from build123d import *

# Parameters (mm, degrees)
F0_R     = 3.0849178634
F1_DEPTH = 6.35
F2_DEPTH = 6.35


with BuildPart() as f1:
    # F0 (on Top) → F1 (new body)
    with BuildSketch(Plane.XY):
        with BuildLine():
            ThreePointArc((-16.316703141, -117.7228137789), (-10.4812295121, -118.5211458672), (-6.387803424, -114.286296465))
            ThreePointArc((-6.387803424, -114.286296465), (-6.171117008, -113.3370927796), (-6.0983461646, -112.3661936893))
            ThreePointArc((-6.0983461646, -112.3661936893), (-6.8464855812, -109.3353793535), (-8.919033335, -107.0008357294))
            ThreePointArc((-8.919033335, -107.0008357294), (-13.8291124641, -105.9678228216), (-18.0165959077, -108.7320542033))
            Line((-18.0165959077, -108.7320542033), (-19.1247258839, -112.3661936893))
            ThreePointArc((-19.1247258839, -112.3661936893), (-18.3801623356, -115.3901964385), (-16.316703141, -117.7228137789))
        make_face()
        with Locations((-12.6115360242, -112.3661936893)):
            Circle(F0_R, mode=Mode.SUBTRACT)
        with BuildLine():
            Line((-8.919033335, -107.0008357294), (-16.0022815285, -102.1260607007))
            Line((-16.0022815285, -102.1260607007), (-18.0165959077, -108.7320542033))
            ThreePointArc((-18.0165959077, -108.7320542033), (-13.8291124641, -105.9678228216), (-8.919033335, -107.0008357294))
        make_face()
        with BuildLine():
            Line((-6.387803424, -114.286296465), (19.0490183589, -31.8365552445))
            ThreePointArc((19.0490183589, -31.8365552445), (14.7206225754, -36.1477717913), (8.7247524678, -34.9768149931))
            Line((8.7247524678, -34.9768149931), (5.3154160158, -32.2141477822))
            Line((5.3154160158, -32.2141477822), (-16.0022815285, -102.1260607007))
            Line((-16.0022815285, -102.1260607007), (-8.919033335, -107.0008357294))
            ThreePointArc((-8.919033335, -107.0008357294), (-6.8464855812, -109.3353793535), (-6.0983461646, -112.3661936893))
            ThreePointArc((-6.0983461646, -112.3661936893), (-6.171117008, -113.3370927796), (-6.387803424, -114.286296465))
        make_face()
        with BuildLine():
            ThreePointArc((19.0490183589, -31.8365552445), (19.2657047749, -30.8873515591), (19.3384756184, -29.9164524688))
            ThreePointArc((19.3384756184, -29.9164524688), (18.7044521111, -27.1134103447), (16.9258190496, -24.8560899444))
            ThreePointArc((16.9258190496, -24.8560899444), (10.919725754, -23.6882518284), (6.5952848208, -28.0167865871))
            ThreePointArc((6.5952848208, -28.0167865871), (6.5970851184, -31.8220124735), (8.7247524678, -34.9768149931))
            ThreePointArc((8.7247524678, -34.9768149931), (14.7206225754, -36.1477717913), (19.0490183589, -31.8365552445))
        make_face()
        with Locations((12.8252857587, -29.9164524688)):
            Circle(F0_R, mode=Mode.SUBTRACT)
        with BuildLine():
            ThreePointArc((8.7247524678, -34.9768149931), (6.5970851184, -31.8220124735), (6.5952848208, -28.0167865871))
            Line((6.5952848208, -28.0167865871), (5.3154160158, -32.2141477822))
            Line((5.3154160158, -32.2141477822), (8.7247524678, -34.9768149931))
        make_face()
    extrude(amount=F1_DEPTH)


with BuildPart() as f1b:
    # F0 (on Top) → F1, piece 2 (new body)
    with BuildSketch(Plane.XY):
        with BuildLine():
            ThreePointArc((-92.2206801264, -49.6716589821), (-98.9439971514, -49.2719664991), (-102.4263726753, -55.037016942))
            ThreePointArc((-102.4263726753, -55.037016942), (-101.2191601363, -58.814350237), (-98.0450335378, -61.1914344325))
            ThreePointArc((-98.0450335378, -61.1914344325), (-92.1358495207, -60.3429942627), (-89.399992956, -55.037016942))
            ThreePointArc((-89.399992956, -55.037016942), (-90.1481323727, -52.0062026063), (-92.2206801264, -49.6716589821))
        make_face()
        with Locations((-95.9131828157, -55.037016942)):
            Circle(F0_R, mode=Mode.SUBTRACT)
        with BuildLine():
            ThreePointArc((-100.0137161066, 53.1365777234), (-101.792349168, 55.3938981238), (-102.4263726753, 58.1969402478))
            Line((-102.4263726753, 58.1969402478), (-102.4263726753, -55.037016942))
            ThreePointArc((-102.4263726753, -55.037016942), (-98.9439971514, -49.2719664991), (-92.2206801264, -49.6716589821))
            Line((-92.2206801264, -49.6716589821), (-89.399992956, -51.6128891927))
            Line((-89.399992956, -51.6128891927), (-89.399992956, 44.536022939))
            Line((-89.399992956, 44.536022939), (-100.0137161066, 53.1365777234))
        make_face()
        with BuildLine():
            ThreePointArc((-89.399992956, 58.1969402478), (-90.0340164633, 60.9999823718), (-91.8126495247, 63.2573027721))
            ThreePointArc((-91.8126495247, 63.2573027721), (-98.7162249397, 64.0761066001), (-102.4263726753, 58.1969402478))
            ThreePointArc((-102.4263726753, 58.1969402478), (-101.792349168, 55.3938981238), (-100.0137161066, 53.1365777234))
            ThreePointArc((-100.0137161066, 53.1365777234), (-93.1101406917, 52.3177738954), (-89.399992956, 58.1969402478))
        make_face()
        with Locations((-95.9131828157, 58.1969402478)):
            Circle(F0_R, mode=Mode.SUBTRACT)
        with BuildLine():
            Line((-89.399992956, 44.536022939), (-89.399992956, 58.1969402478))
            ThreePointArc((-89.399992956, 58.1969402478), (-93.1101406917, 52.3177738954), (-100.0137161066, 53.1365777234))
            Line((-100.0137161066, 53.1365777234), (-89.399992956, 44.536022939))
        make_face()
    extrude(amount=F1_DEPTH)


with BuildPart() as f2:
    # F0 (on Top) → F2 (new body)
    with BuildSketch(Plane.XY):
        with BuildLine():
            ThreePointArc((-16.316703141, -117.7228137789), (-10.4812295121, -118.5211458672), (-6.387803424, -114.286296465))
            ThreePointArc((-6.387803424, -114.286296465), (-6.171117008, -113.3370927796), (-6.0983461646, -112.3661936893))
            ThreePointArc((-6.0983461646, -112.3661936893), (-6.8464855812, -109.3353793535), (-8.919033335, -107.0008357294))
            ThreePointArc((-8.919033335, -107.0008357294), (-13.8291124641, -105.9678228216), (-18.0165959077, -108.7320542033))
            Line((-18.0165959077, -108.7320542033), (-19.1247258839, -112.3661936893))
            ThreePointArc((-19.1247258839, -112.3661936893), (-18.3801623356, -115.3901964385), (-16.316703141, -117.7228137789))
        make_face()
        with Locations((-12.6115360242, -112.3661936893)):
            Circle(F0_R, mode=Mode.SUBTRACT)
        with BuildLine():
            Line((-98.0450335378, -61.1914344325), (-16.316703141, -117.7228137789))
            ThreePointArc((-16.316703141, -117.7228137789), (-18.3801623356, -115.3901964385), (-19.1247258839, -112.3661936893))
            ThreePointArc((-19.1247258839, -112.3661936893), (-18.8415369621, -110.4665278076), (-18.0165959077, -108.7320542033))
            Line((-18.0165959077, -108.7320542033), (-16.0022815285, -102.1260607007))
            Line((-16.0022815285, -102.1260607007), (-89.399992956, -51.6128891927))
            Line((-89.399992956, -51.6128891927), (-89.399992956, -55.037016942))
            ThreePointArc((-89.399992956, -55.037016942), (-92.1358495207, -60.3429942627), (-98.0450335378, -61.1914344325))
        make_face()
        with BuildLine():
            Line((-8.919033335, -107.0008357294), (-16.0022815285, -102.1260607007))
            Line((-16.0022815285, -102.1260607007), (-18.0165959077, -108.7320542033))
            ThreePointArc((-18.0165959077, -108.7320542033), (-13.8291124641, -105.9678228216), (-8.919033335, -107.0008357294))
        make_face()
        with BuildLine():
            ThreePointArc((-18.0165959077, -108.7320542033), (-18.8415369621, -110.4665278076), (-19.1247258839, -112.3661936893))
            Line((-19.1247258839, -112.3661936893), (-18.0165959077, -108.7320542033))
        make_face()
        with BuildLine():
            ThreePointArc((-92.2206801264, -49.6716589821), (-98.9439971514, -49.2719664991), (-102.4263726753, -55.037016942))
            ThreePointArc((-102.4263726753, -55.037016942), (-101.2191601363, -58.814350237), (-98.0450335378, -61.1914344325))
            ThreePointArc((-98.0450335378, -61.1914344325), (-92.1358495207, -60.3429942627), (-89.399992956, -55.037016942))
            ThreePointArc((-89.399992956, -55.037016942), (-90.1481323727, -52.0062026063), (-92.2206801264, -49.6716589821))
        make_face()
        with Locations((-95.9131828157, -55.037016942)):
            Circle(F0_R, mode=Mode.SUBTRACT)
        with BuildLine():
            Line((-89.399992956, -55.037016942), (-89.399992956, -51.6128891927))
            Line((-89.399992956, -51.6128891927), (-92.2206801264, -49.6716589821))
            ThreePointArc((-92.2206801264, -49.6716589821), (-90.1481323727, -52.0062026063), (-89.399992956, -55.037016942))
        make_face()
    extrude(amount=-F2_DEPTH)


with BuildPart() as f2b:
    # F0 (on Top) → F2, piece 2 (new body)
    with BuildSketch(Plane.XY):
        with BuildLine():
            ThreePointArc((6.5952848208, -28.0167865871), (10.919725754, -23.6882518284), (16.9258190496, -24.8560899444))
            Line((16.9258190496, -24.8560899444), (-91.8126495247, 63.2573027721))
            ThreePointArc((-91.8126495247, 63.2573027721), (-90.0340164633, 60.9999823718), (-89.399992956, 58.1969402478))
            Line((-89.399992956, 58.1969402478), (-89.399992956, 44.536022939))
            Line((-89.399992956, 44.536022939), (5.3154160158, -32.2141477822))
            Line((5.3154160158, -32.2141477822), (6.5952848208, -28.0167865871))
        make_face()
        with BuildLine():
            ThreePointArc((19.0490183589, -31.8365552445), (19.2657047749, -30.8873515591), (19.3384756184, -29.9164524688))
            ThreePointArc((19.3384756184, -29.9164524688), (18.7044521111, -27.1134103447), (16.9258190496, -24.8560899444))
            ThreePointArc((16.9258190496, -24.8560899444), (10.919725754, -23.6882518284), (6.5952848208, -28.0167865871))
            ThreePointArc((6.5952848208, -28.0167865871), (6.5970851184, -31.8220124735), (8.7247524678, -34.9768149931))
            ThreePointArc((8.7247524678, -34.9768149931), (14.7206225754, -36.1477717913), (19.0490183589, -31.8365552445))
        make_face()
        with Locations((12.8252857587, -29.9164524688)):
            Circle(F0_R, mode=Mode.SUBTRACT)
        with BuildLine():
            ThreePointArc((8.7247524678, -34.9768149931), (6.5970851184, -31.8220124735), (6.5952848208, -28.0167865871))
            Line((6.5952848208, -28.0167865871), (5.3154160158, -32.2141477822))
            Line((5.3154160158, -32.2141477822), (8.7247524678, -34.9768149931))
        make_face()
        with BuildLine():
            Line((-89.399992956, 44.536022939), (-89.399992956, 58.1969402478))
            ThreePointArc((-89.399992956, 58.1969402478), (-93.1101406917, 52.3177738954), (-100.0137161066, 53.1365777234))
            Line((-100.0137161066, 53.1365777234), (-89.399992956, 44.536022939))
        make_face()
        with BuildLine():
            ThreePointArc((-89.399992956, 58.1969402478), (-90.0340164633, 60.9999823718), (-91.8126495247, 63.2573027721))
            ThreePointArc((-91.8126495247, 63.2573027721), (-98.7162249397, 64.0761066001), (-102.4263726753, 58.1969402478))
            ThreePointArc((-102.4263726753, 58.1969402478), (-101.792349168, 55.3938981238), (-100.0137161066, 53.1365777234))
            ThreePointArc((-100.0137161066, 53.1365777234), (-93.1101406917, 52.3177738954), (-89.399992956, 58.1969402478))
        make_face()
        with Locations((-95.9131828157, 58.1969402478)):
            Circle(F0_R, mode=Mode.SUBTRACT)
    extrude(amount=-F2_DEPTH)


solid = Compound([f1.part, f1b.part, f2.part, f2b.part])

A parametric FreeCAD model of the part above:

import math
import FreeCAD as App
import Part
import Sketcher
from FreeCAD import Vector
Q = App.Units.Quantity

doc = App.newDocument("Part")
body = doc.addObject("PartDesign::Body", "Body")

# Sketch on XY plane
sketch1 = body.newObject("Sketcher::SketchObject", "Sketch")
sketch1.AttachmentSupport = (doc.getObject("XY_Plane"), [""])
sketch1.MapMode = "FlatFace"
sketch1.addGeometry(Part.ArcOfCircle(Part.Circle(Vector(-12.611536, -112.366194, 0), Vector(0, 0, 1), 6.51319), math.radians(-124.671559), math.radians(-17.145678)), False)
sketch1.addGeometry(Part.LineSegment(Vector(-6.387803, -114.286296, 0), Vector(19.049018, -31.836555, 0)), False)
sketch1.addGeometry(Part.ArcOfCircle(Part.Circle(Vector(12.825286, -29.916452, 0), Vector(0, 0, 1), 6.51319), math.radians(-17.145678), math.radians(0)), False)
sketch1.addGeometry(Part.ArcOfCircle(Part.Circle(Vector(12.825286, -29.916452, 0), Vector(0, 0, 1), 6.51319), math.radians(0), math.radians(50.981319)), False)
sketch1.addGeometry(Part.ArcOfCircle(Part.Circle(Vector(12.825286, -29.916452, 0), Vector(0, 0, 1), 6.51319), math.radians(50.981319), math.radians(163.04237)), False)
sketch1.addGeometry(Part.LineSegment(Vector(6.595285, -28.016787, 0), Vector(5.315416, -32.214148, 0)), False)
sketch1.addGeometry(Part.LineSegment(Vector(5.315416, -32.214148, 0), Vector(-16.002282, -102.126061, 0)), False)
sketch1.addGeometry(Part.LineSegment(Vector(-16.002282, -102.126061, 0), Vector(-18.016596, -108.732054, 0)), False)
sketch1.addGeometry(Part.LineSegment(Vector(-18.016596, -108.732054, 0), Vector(-19.124726, -112.366194, 0)), False)
sketch1.addGeometry(Part.ArcOfCircle(Part.Circle(Vector(-12.611536, -112.366194, 0), Vector(0, 0, 1), 6.51319), math.radians(180), math.radians(235.328441)), False)
sketch1.addGeometry(Part.Circle(Vector(-12.611536, -112.366194, 0), Vector(0, 0, 1), 3.084918), False)
sketch1.addGeometry(Part.Circle(Vector(12.825286, -29.916452, 0), Vector(0, 0, 1), 3.084918), False)
sketch1.addConstraint(Sketcher.Constraint("Tangent", 0, 2, 1, 1))
sketch1.addConstraint(Sketcher.Constraint("Tangent", 1, 2, 2, 1))
sketch1.addConstraint(Sketcher.Constraint("Tangent", 2, 2, 3, 1))
sketch1.addConstraint(Sketcher.Constraint("Tangent", 3, 2, 4, 1))
sketch1.addConstraint(Sketcher.Constraint("Tangent", 4, 2, 5, 1))
sketch1.addConstraint(Sketcher.Constraint("Coincident", 5, 2, 6, 1))
sketch1.addConstraint(Sketcher.Constraint("Coincident", 6, 2, 7, 1))
sketch1.addConstraint(Sketcher.Constraint("Coincident", 7, 2, 8, 1))
sketch1.addConstraint(Sketcher.Constraint("Coincident", 8, 2, 9, 1))
sketch1.addConstraint(Sketcher.Constraint("Tangent", 9, 2, 0, 1))
sketch1.addConstraint(Sketcher.Constraint("Coincident", 4, 3, 2, 3))
sketch1.addConstraint(Sketcher.Constraint("Coincident", 10, 3, 0, 3))
sketch1.addConstraint(Sketcher.Constraint("Coincident", 11, 3, 2, 3))
sketch1.addConstraint(Sketcher.Constraint("Equal", 0, 2))
sketch1.addConstraint(Sketcher.Constraint("Equal", 4, 9))
sketch1.addConstraint(Sketcher.Constraint("Equal", 10, 11))
sketch1.addConstraint(Sketcher.Constraint("Parallel", 5, 6))
sketch1.addConstraint(Sketcher.Constraint("Parallel", 6, 7))
sketch1.addConstraint(Sketcher.Constraint("Parallel", 7, 8))
sketch1.addConstraint(Sketcher.Constraint("Horizontal", 11, 3, 2, 2))
sketch1.addConstraint(Sketcher.Constraint("Horizontal", 10, 3, 8, 2))
sketch1.addConstraint(Sketcher.Constraint("Radius", 0, Q("6.51319 mm")))
sketch1.addConstraint(Sketcher.Constraint("Diameter", 10, Q("6.169836 mm")))
sketch1.addConstraint(Sketcher.Constraint("DistanceX", 4, 2, 2, 3, Q("6.230001 mm")))
sketch1.addConstraint(Sketcher.Constraint("Distance", 8, Q("3.799332 mm")))
sketch1.addConstraint(Sketcher.Constraint("DistanceX", -1, 1, 1, 2, Q("19.049018 mm")))
sketch1.addConstraint(Sketcher.Constraint("DistanceX", -1, 1, 3, 2, Q("16.925819 mm")))
sketch1.addConstraint(Sketcher.Constraint("DistanceY", 3, 2, -1, 1, Q("24.85609 mm")))
sketch1.addConstraint(Sketcher.Constraint("DistanceX", 6, 2, -1, 1, Q("16.002282 mm")))
sketch1.addConstraint(Sketcher.Constraint("DistanceX", 0, 3, 2, 3, Q("25.436822 mm")))
sketch1.addConstraint(Sketcher.Constraint("DistanceX", 5, 2, 4, 2, Q("1.279869 mm")))
sketch1.addConstraint(Sketcher.Constraint("DistanceY", 9, 2, 8, 2, Q("5.35662 mm")))
pad1 = body.newObject("PartDesign::Pad", "Pad")
pad1.Profile = sketch1
pad1.Length = Q("0.25 in")
body2 = doc.addObject("PartDesign::Body", "Body001")

# Sketch on XY plane
sketch2 = body2.newObject("Sketcher::SketchObject", "Sketch001")
sketch2.AttachmentSupport = (doc.getObject("XY_Plane001"), [""])
sketch2.MapMode = "FlatFace"
sketch2.addGeometry(Part.ArcOfCircle(Part.Circle(Vector(-95.913183, -55.037017, 0), Vector(0, 0, 1), 6.51319), math.radians(0), math.radians(55.463792)), False)
sketch2.addGeometry(Part.LineSegment(Vector(-92.22068, -49.671659, 0), Vector(-89.399993, -51.612889, 0)), False)
sketch2.addGeometry(Part.LineSegment(Vector(-89.399993, -51.612889, 0), Vector(-89.399993, 58.19694, 0)), False)
sketch2.addGeometry(Part.ArcOfCircle(Part.Circle(Vector(-95.913183, 58.19694, 0), Vector(0, 0, 1), 6.51319), math.radians(0), math.radians(50.981319)), False)
sketch2.addGeometry(Part.ArcOfCircle(Part.Circle(Vector(-95.913183, 58.19694, 0), Vector(0, 0, 1), 6.51319), math.radians(50.981319), math.radians(180)), False)
sketch2.addGeometry(Part.LineSegment(Vector(-102.426373, 58.19694, 0), Vector(-102.426373, -55.037017, 0)), False)
sketch2.addGeometry(Part.ArcOfCircle(Part.Circle(Vector(-95.913183, -55.037017, 0), Vector(0, 0, 1), 6.51319), math.radians(180), math.radians(250.894243)), False)
sketch2.addGeometry(Part.ArcOfCircle(Part.Circle(Vector(-95.913183, -55.037017, 0), Vector(0, 0, 1), 6.51319), math.radians(-109.105757), math.radians(0)), False)
sketch2.addGeometry(Part.Circle(Vector(-95.913183, -55.037017, 0), Vector(0, 0, 1), 3.084918), False)
sketch2.addGeometry(Part.Circle(Vector(-95.913183, 58.19694, 0), Vector(0, 0, 1), 3.084918), False)
sketch2.addConstraint(Sketcher.Constraint("Tangent", 0, 2, 1, 1))
sketch2.addConstraint(Sketcher.Constraint("Coincident", 1, 2, 2, 1))
sketch2.addConstraint(Sketcher.Constraint("Tangent", 2, 2, 3, 1))
sketch2.addConstraint(Sketcher.Constraint("Tangent", 3, 2, 4, 1))
sketch2.addConstraint(Sketcher.Constraint("Tangent", 4, 2, 5, 1))
sketch2.addConstraint(Sketcher.Constraint("Tangent", 5, 2, 6, 1))
sketch2.addConstraint(Sketcher.Constraint("Tangent", 6, 2, 7, 1))
sketch2.addConstraint(Sketcher.Constraint("Tangent", 7, 2, 0, 1))
sketch2.addConstraint(Sketcher.Constraint("Vertical", 2))
sketch2.addConstraint(Sketcher.Constraint("Vertical", 5))
sketch2.addConstraint(Sketcher.Constraint("Coincident", 6, 3, 0, 3))
sketch2.addConstraint(Sketcher.Constraint("Coincident", 8, 3, 0, 3))
sketch2.addConstraint(Sketcher.Constraint("Coincident", 9, 3, 3, 3))
sketch2.addConstraint(Sketcher.Constraint("Equal", 0, 3))
sketch2.addConstraint(Sketcher.Constraint("Equal", 3, 4))
sketch2.addConstraint(Sketcher.Constraint("Equal", 8, 9))
sketch2.addConstraint(Sketcher.Constraint("Horizontal", 5, 2, 7, 2))
sketch2.addConstraint(Sketcher.Constraint("Radius", 0, Q("6.51319 mm")))
sketch2.addConstraint(Sketcher.Constraint("Diameter", 8, Q("6.169836 mm")))
sketch2.addConstraint(Sketcher.Constraint("DistanceY", 6, 2, 0, 3, Q("0.2422999 in")))
sketch2.addConstraint(Sketcher.Constraint("DistanceY", 2, 1, 2, 2, Q("109.809829 mm")))
sketch2.addConstraint(Sketcher.Constraint("DistanceY", 0, 2, 3, 3, Q("107.868599 mm")))
sketch2.addConstraint(Sketcher.Constraint("DistanceY", -1, 1, 3, 3, Q("58.19694 mm")))
sketch2.addConstraint(Sketcher.Constraint("DistanceX", 0, 2, -1, 1, Q("92.22068 mm")))
sketch2.addConstraint(Sketcher.Constraint("DistanceX", 3, 2, -1, 1, Q("91.81265 mm")))
pad2 = body2.newObject("PartDesign::Pad", "Pad001")
pad2.Profile = sketch2
pad2.Length = Q("0.25 in")
body3 = doc.addObject("PartDesign::Body", "Body002")

# Sketch on XY plane
sketch3 = body3.newObject("Sketcher::SketchObject", "Sketch002")
sketch3.AttachmentSupport = (doc.getObject("XY_Plane002"), [""])
sketch3.MapMode = "FlatFace"
sketch3.addGeometry(Part.ArcOfCircle(Part.Circle(Vector(-12.611536, -112.366194, 0), Vector(0, 0, 1), 6.51319), math.radians(0), math.radians(55.463792)), False)
sketch3.addGeometry(Part.LineSegment(Vector(-8.919033, -107.000836, 0), Vector(-16.002282, -102.126061, 0)), False)
sketch3.addGeometry(Part.LineSegment(Vector(-16.002282, -102.126061, 0), Vector(-89.399993, -51.612889, 0)), False)
sketch3.addGeometry(Part.LineSegment(Vector(-89.399993, -51.612889, 0), Vector(-92.22068, -49.671659, 0)), False)
sketch3.addGeometry(Part.ArcOfCircle(Part.Circle(Vector(-95.913183, -55.037017, 0), Vector(0, 0, 1), 6.51319), math.radians(55.463792), math.radians(180)), False)
sketch3.addGeometry(Part.ArcOfCircle(Part.Circle(Vector(-95.913183, -55.037017, 0), Vector(0, 0, 1), 6.51319), math.radians(180), math.radians(250.894243)), False)
sketch3.addGeometry(Part.LineSegment(Vector(-98.045034, -61.191434, 0), Vector(-16.316703, -117.722814, 0)), False)
sketch3.addGeometry(Part.ArcOfCircle(Part.Circle(Vector(-12.611536, -112.366194, 0), Vector(0, 0, 1), 6.51319), math.radians(-124.671559), math.radians(-17.145678)), False)
sketch3.addGeometry(Part.ArcOfCircle(Part.Circle(Vector(-12.611536, -112.366194, 0), Vector(0, 0, 1), 6.51319), math.radians(-17.145677), math.radians(0)), False)
sketch3.addGeometry(Part.Circle(Vector(-12.611536, -112.366194, 0), Vector(0, 0, 1), 3.084918), False)
sketch3.addGeometry(Part.Circle(Vector(-95.913183, -55.037017, 0), Vector(0, 0, 1), 3.084918), False)
sketch3.addConstraint(Sketcher.Constraint("Tangent", 0, 2, 1, 1))
sketch3.addConstraint(Sketcher.Constraint("Coincident", 1, 2, 2, 1))
sketch3.addConstraint(Sketcher.Constraint("Coincident", 2, 2, 3, 1))
sketch3.addConstraint(Sketcher.Constraint("Tangent", 3, 2, 4, 1))
sketch3.addConstraint(Sketcher.Constraint("Tangent", 4, 2, 5, 1))
sketch3.addConstraint(Sketcher.Constraint("Coincident", 5, 2, 6, 1))
sketch3.addConstraint(Sketcher.Constraint("Tangent", 6, 2, 7, 1))
sketch3.addConstraint(Sketcher.Constraint("Tangent", 7, 2, 8, 1))
sketch3.addConstraint(Sketcher.Constraint("Tangent", 8, 2, 0, 1))
sketch3.addConstraint(Sketcher.Constraint("Coincident", 7, 3, 0, 3))
sketch3.addConstraint(Sketcher.Constraint("Coincident", 9, 3, 0, 3))
sketch3.addConstraint(Sketcher.Constraint("Coincident", 10, 3, 4, 3))
sketch3.addConstraint(Sketcher.Constraint("Equal", 0, 4))
sketch3.addConstraint(Sketcher.Constraint("Equal", 4, 5))
sketch3.addConstraint(Sketcher.Constraint("Equal", 9, 10))
sketch3.addConstraint(Sketcher.Constraint("Parallel", 1, 2))
sketch3.addConstraint(Sketcher.Constraint("Parallel", 2, 3))
sketch3.addConstraint(Sketcher.Constraint("Horizontal", 10, 3, 4, 2))
sketch3.addConstraint(Sketcher.Constraint("Horizontal", 9, 3, 8, 2))
sketch3.addConstraint(Sketcher.Constraint("Radius", 0, Q("6.51319 mm")))
sketch3.addConstraint(Sketcher.Constraint("Diameter", 9, Q("6.169836 mm")))
sketch3.addConstraint(Sketcher.Constraint("DistanceY", 5, 2, 4, 3, Q("0.2422999 in")))
sketch3.addConstraint(Sketcher.Constraint("DistanceX", 3, 2, 1, 2, Q("76.218399 mm")))
sketch3.addConstraint(Sketcher.Constraint("DistanceY", 1, 2, 3, 2, Q("52.454402 mm")))
sketch3.addConstraint(Sketcher.Constraint("Distance", 2, Q("89.099969 mm")))
sketch3.addConstraint(Sketcher.Constraint("Distance", 6, Q("99.374629 mm")))
sketch3.addConstraint(Sketcher.Constraint("DistanceX", 1, 2, -1, 1, Q("16.002282 mm")))
sketch3.addConstraint(Sketcher.Constraint("DistanceY", 1, 2, -1, 1, Q("102.126061 mm")))
sketch3.addConstraint(Sketcher.Constraint("DistanceX", 0, 2, 7, 2, Q("2.53123 mm")))
pad3 = body3.newObject("PartDesign::Pad", "Pad002")
pad3.Profile = sketch3
pad3.Length = Q("0.25 in")
pad3.Reversed = True
body4 = doc.addObject("PartDesign::Body", "Body003")

# Sketch on XY plane
sketch4 = body4.newObject("Sketcher::SketchObject", "Sketch003")
sketch4.AttachmentSupport = (doc.getObject("XY_Plane003"), [""])
sketch4.MapMode = "FlatFace"
sketch4.addGeometry(Part.LineSegment(Vector(16.925819, -24.85609, 0), Vector(-91.81265, 63.257303, 0)), False)
sketch4.addGeometry(Part.ArcOfCircle(Part.Circle(Vector(-95.913183, 58.19694, 0), Vector(0, 0, 1), 6.51319), math.radians(50.981319), math.radians(180)), False)
sketch4.addGeometry(Part.ArcOfCircle(Part.Circle(Vector(-95.913183, 58.19694, 0), Vector(0, 0, 1), 6.51319), math.radians(180), math.radians(230.981319)), False)
sketch4.addGeometry(Part.LineSegment(Vector(-100.013716, 53.136578, 0), Vector(-89.399993, 44.536023, 0)), False)
sketch4.addGeometry(Part.LineSegment(Vector(-89.399993, 44.536023, 0), Vector(5.315416, -32.214148, 0)), False)
sketch4.addGeometry(Part.LineSegment(Vector(5.315416, -32.214148, 0), Vector(8.724752, -34.976815, 0)), False)
sketch4.addGeometry(Part.ArcOfCircle(Part.Circle(Vector(12.825286, -29.916452, 0), Vector(0, 0, 1), 6.51319), math.radians(-129.018681), math.radians(-17.145678)), False)
sketch4.addGeometry(Part.ArcOfCircle(Part.Circle(Vector(12.825286, -29.916452, 0), Vector(0, 0, 1), 6.51319), math.radians(-17.145678), math.radians(0)), False)
sketch4.addGeometry(Part.ArcOfCircle(Part.Circle(Vector(12.825286, -29.916452, 0), Vector(0, 0, 1), 6.51319), math.radians(0), math.radians(50.981319)), False)
sketch4.addGeometry(Part.Circle(Vector(12.825286, -29.916452, 0), Vector(0, 0, 1), 3.084918), False)
sketch4.addGeometry(Part.Circle(Vector(-95.913183, 58.19694, 0), Vector(0, 0, 1), 3.084918), False)
sketch4.addConstraint(Sketcher.Constraint("Tangent", 0, 2, 1, 1))
sketch4.addConstraint(Sketcher.Constraint("Tangent", 1, 2, 2, 1))
sketch4.addConstraint(Sketcher.Constraint("Tangent", 2, 2, 3, 1))
sketch4.addConstraint(Sketcher.Constraint("Coincident", 3, 2, 4, 1))
sketch4.addConstraint(Sketcher.Constraint("Coincident", 4, 2, 5, 1))
sketch4.addConstraint(Sketcher.Constraint("Tangent", 5, 2, 6, 1))
sketch4.addConstraint(Sketcher.Constraint("Tangent", 6, 2, 7, 1))
sketch4.addConstraint(Sketcher.Constraint("Tangent", 7, 2, 8, 1))
sketch4.addConstraint(Sketcher.Constraint("Tangent", 8, 2, 0, 1))
sketch4.addConstraint(Sketcher.Constraint("Coincident", 8, 3, 6, 3))
sketch4.addConstraint(Sketcher.Constraint("Coincident", 9, 3, 6, 3))
sketch4.addConstraint(Sketcher.Constraint("Coincident", 10, 3, 1, 3))
sketch4.addConstraint(Sketcher.Constraint("Equal", 1, 2))
sketch4.addConstraint(Sketcher.Constraint("Equal", 2, 6))
sketch4.addConstraint(Sketcher.Constraint("Equal", 9, 10))
sketch4.addConstraint(Sketcher.Constraint("Parallel", 0, 3))
sketch4.addConstraint(Sketcher.Constraint("Parallel", 3, 4))
sketch4.addConstraint(Sketcher.Constraint("Horizontal", 10, 3, 1, 2))
sketch4.addConstraint(Sketcher.Constraint("Horizontal", 9, 3, 7, 2))
sketch4.addConstraint(Sketcher.Constraint("Radius", 1, Q("6.51319 mm")))
sketch4.addConstraint(Sketcher.Constraint("Diameter", 9, Q("6.169836 mm")))
sketch4.addConstraint(Sketcher.Constraint("Distance", 4, Q("121.908152 mm")))
sketch4.addConstraint(Sketcher.Constraint("DistanceY", -1, 1, 1, 3, Q("58.19694 mm")))
sketch4.addConstraint(Sketcher.Constraint("DistanceX", 0, 2, -1, 1, Q("91.81265 mm")))
sketch4.addConstraint(Sketcher.Constraint("DistanceX", -1, 1, 6, 2, Q("19.049018 mm")))
sketch4.addConstraint(Sketcher.Constraint("DistanceX", -1, 1, 8, 2, Q("16.925819 mm")))
sketch4.addConstraint(Sketcher.Constraint("DistanceY", 8, 2, -1, 1, Q("24.85609 mm")))
sketch4.addConstraint(Sketcher.Constraint("DistanceX", 2, 3, 3, 2, Q("6.51319 mm")))
pad4 = body4.newObject("PartDesign::Pad", "Pad003")
pad4.Profile = sketch4
pad4.Length = Q("0.25 in")
pad4.Reversed = True

doc.recompute()
